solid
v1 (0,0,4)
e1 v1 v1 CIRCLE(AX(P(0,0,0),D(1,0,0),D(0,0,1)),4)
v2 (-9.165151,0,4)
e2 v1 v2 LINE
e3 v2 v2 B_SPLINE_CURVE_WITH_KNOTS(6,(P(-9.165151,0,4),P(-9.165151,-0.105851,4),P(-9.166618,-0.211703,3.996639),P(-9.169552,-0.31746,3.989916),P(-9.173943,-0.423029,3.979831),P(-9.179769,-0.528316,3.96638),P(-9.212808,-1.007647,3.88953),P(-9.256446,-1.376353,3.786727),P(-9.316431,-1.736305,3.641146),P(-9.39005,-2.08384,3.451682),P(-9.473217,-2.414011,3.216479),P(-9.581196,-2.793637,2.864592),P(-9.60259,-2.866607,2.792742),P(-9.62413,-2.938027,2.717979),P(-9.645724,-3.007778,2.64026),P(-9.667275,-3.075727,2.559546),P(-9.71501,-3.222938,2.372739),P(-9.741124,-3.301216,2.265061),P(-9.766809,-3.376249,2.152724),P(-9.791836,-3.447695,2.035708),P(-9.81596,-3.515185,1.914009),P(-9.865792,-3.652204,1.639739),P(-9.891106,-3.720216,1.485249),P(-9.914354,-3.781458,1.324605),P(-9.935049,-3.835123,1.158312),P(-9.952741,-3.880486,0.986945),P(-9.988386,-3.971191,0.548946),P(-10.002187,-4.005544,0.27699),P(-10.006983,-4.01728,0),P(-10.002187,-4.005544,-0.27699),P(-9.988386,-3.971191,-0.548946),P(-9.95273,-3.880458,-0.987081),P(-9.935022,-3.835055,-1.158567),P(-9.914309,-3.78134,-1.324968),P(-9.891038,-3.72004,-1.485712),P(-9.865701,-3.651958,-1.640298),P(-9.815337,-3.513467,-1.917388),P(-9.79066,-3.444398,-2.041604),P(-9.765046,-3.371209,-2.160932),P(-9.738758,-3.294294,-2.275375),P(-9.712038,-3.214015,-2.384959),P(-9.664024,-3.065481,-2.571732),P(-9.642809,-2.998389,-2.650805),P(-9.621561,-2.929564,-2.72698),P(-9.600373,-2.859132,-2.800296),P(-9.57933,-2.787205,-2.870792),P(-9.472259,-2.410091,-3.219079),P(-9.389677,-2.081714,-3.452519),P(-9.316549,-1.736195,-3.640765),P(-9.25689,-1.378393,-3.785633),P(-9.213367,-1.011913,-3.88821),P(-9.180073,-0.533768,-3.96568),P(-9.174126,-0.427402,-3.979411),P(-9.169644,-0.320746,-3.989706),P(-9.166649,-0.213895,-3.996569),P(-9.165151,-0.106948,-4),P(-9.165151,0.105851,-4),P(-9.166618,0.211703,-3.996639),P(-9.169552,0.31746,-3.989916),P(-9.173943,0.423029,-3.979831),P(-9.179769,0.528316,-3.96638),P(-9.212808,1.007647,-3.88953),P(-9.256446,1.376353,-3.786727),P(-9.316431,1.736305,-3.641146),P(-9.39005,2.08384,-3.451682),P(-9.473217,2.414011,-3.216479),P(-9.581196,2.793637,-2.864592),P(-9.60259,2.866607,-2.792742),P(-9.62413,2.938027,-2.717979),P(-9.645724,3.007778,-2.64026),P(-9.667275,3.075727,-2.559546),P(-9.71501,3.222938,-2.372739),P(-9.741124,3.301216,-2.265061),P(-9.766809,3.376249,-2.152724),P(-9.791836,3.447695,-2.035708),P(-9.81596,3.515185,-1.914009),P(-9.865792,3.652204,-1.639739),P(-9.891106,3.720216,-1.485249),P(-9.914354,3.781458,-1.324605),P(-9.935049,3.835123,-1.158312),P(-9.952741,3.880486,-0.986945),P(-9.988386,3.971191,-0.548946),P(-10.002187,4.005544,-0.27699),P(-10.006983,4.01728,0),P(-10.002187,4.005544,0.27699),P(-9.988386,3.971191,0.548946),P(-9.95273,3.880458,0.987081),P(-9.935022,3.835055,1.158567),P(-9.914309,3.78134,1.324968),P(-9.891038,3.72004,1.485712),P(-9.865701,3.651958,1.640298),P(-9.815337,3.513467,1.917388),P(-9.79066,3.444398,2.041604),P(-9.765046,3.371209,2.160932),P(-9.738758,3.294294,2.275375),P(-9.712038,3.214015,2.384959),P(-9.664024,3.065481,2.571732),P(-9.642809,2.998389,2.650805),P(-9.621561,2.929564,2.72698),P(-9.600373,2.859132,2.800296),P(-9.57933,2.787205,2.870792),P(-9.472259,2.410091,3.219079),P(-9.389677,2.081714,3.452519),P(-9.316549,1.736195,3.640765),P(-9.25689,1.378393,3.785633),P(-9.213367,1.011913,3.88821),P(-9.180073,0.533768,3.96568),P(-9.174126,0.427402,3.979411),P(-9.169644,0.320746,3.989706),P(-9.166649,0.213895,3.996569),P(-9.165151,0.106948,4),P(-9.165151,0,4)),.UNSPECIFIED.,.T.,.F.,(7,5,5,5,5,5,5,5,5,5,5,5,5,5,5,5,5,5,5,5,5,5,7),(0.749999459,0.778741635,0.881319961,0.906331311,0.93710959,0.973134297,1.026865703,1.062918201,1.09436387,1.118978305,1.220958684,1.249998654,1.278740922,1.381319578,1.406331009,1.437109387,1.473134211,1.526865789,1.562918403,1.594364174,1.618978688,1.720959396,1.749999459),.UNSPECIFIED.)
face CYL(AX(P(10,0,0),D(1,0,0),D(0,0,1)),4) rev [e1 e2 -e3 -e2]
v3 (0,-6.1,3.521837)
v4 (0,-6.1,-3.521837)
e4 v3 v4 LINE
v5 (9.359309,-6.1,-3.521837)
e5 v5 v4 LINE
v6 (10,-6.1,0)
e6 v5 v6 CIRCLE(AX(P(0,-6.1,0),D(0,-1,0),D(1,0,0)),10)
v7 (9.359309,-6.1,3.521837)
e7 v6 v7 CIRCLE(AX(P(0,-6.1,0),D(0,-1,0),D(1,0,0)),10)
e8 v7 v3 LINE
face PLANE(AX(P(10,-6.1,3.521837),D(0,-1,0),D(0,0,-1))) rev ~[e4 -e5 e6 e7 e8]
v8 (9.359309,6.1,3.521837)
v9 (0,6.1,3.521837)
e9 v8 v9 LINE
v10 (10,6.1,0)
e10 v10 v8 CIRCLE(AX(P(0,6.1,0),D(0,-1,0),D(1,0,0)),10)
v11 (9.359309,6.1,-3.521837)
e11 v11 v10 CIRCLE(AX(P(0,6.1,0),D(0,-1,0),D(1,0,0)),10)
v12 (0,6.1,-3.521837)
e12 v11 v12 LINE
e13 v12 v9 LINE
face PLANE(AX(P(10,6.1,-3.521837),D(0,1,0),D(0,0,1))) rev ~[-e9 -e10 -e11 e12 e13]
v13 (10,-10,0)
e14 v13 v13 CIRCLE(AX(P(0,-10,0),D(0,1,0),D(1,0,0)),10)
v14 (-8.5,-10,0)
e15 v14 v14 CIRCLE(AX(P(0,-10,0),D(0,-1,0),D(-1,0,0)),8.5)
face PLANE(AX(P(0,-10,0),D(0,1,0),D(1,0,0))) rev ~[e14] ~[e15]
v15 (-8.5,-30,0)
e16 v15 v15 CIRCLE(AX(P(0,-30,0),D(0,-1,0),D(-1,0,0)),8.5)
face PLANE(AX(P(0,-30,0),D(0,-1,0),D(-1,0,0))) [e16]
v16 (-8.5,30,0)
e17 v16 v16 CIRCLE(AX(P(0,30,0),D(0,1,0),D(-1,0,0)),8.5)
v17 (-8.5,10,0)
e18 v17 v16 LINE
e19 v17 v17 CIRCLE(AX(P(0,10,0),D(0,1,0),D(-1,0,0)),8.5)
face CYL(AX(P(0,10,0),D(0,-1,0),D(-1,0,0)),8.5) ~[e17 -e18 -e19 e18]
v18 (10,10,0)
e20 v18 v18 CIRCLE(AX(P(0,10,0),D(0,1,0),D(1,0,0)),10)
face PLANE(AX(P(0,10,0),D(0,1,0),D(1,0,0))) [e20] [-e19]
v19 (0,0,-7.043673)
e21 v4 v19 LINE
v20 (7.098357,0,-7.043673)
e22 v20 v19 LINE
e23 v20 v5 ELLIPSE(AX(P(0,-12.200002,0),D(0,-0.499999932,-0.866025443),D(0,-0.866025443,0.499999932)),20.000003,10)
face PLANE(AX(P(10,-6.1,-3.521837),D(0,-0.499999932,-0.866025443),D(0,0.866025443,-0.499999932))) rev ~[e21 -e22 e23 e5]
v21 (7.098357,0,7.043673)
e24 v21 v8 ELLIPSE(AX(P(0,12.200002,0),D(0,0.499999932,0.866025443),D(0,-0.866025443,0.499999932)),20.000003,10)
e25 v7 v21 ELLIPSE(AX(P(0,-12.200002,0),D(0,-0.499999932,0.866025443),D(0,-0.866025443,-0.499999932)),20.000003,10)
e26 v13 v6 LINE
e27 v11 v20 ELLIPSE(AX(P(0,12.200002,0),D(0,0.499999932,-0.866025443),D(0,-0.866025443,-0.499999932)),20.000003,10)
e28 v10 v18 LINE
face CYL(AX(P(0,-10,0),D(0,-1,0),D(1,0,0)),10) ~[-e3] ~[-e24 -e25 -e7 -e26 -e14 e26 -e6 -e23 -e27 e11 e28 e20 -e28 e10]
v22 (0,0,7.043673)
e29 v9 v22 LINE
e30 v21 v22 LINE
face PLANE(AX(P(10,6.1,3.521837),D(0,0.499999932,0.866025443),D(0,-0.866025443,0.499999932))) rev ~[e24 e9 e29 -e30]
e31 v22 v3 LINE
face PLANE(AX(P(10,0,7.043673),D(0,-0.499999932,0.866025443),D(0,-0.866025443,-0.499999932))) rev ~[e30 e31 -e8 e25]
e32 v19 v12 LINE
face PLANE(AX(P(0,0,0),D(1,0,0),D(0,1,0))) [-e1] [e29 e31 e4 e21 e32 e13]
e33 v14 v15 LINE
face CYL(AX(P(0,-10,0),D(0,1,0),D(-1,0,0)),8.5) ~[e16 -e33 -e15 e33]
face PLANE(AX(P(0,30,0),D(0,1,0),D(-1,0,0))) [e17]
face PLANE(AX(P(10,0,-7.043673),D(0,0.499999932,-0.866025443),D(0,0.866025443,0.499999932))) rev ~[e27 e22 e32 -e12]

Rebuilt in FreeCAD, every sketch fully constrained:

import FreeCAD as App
import Part
import Sketcher
from FreeCAD import Vector
Q = App.Units.Quantity


def add_polygon(sketch, points):
    """Adds a closed chain of lines whose ends are joined by coincident constraints."""
    first, n = sketch.GeometryCount, len(points)
    for a, b in zip(points, points[1:] + points[:1]):
        sketch.addGeometry(Part.LineSegment(App.Vector(*a, 0), App.Vector(*b, 0)), False)
    for i in range(n):
        sketch.addConstraint(Sketcher.Constraint("Coincident", first + i, 2, first + (i + 1) % n, 1))

doc = App.newDocument("Part")
body = doc.addObject("PartDesign::Body", "Body")

# Sketch on YZ plane
sketch1 = doc.addObject("Sketcher::SketchObject", "Sketch")
body.addObject(sketch1)
sketch1.AttachmentSupport = (doc.YZ_Plane, [""])
sketch1.MapMode = "FlatFace"
sketch1.AttachmentOffset = App.Placement(Vector(0, 0, 10), App.Rotation())
sketch1.addGeometry(Part.Circle(Vector(0, 0, 0), Vector(0, 0, 1), 4), False)
sketch1.addConstraint(Sketcher.Constraint("Coincident", 0, 3, -1, 1))
sketch1.addConstraint(Sketcher.Constraint("Diameter", 0, 8.0))
pad1 = doc.addObject("PartDesign::Pad", "Pad")
body.addObject(pad1)
pad1.Profile = sketch1
pad1.Length = 20
pad1.Reversed = True
body2 = doc.addObject("PartDesign::Body", "Body001")

# Sketch on YZ plane
sketch2 = doc.addObject("Sketcher::SketchObject", "Sketch001")
body2.addObject(sketch2)
sketch2.AttachmentSupport = (doc.getObject("YZ_Plane001"), [""])
sketch2.MapMode = "FlatFace"
add_polygon(sketch2, [(6, -4), (6, 4), (0, 7), (-6, 4), (-6, -4), (0, -7)])  # lines 0-5
sketch2.addConstraint(Sketcher.Constraint("Vertical", 0))
sketch2.addConstraint(Sketcher.Constraint("Vertical", 3))
sketch2.addConstraint(Sketcher.Constraint("Symmetric", 0, 2, 3, 2, -1, 1))
sketch2.addConstraint(Sketcher.Constraint("Symmetric", 1, 2, 4, 2, -1, 1))
sketch2.addConstraint(Sketcher.Constraint("PointOnObject", 1, 2, -2))
sketch2.addConstraint(Sketcher.Constraint("Parallel", 2, 5))
sketch2.addConstraint(Sketcher.Constraint("Horizontal", 0, 2, 2, 2))
sketch2.addConstraint(Sketcher.Constraint("Angle", 1, Q("150.000005 deg")))
sketch2.addConstraint(Sketcher.Constraint("DistanceX", -1, 1, 0, 2, 6.1))
sketch2.addConstraint(Sketcher.Constraint("DistanceY", 0, 1, 0, 2, 7.043674))
pad2 = doc.addObject("PartDesign::Pad", "Pad001")
body2.addObject(pad2)
pad2.Profile = sketch2
pad2.Length = 10
pad2.Reversed = True
body3 = doc.addObject("PartDesign::Body", "Body002")
doc.recompute()

body2.Placement = App.Placement(Vector(10, 0, 0), App.Rotation(Vector(0, 0, 1), 0))
boolean = doc.addObject("PartDesign::Boolean", "Boolean")
body3.addObject(boolean)
boolean.Type = "Fuse"
boolean.addObjects([body2])
doc.recompute()

boolean2 = doc.addObject("PartDesign::Boolean", "Boolean001")
body3.addObject(boolean2)
boolean2.Type = "Fuse"
boolean2.addObjects([body])
body4 = doc.addObject("PartDesign::Body", "Body003")

# Sketch on XZ plane
sketch3 = doc.addObject("Sketcher::SketchObject", "Sketch002")
body4.addObject(sketch3)
sketch3.AttachmentSupport = (doc.getObject("XZ_Plane003"), [""])
sketch3.MapMode = "FlatFace"
sketch3.AttachmentOffset = App.Placement(Vector(0, 0, 10), App.Rotation())
sketch3.addGeometry(Part.Circle(Vector(0, 0, 0), Vector(0, 0, 1), 10), False)
sketch3.addConstraint(Sketcher.Constraint("Coincident", 0, 3, -1, 1))
sketch3.addConstraint(Sketcher.Constraint("Diameter", 0, 20.0))
pad3 = doc.addObject("PartDesign::Pad", "Pad002")
body4.addObject(pad3)
pad3.Profile = sketch3
pad3.Length = 20
pad3.Reversed = True
body5 = doc.addObject("PartDesign::Body", "Body004")

# Sketch on XZ plane
sketch4 = doc.addObject("Sketcher::SketchObject", "Sketch003")
body5.addObject(sketch4)
sketch4.AttachmentSupport = (doc.getObject("XZ_Plane004"), [""])
sketch4.MapMode = "FlatFace"
sketch4.AttachmentOffset = App.Placement(Vector(0, 0, -10), App.Rotation())
sketch4.addGeometry(Part.Circle(Vector(0, 0, 0), Vector(0, 0, 1), 8), False)
sketch4.addConstraint(Sketcher.Constraint("Coincident", 0, 3, -1, 1))
sketch4.addConstraint(Sketcher.Constraint("Diameter", 0, 17.0))
pad4 = doc.addObject("PartDesign::Pad", "Pad003")
body5.addObject(pad4)
pad4.Profile = sketch4
pad4.Length = 20
pad4.Reversed = True
body6 = doc.addObject("PartDesign::Body", "Body005")

# Sketch on XZ plane
sketch5 = doc.addObject("Sketcher::SketchObject", "Sketch004")
body6.addObject(sketch5)
sketch5.AttachmentSupport = (doc.getObject("XZ_Plane005"), [""])
sketch5.MapMode = "FlatFace"
sketch5.AttachmentOffset = App.Placement(Vector(0, 0, 10), App.Rotation())
sketch5.addGeometry(Part.Circle(Vector(0, 0, 0), Vector(0, 0, 1), 8), False)
sketch5.addConstraint(Sketcher.Constraint("Coincident", 0, 3, -1, 1))
sketch5.addConstraint(Sketcher.Constraint("Diameter", 0, 17.0))
pad5 = doc.addObject("PartDesign::Pad", "Pad004")
body6.addObject(pad5)
pad5.Profile = sketch5
pad5.Length = 20
doc.recompute()

boolean3 = doc.addObject("PartDesign::Boolean", "Boolean002")
body6.addObject(boolean3)
boolean3.Type = "Fuse"
boolean3.addObjects([body4])
doc.recompute()

boolean4 = doc.addObject("PartDesign::Boolean", "Boolean003")
body6.addObject(boolean4)
boolean4.Type = "Fuse"
boolean4.addObjects([body5])
doc.recompute()

boolean5 = doc.addObject("PartDesign::Boolean", "Boolean004")
body6.addObject(boolean5)
boolean5.Type = "Cut"
boolean5.addObjects([body3])

doc.recompute()
